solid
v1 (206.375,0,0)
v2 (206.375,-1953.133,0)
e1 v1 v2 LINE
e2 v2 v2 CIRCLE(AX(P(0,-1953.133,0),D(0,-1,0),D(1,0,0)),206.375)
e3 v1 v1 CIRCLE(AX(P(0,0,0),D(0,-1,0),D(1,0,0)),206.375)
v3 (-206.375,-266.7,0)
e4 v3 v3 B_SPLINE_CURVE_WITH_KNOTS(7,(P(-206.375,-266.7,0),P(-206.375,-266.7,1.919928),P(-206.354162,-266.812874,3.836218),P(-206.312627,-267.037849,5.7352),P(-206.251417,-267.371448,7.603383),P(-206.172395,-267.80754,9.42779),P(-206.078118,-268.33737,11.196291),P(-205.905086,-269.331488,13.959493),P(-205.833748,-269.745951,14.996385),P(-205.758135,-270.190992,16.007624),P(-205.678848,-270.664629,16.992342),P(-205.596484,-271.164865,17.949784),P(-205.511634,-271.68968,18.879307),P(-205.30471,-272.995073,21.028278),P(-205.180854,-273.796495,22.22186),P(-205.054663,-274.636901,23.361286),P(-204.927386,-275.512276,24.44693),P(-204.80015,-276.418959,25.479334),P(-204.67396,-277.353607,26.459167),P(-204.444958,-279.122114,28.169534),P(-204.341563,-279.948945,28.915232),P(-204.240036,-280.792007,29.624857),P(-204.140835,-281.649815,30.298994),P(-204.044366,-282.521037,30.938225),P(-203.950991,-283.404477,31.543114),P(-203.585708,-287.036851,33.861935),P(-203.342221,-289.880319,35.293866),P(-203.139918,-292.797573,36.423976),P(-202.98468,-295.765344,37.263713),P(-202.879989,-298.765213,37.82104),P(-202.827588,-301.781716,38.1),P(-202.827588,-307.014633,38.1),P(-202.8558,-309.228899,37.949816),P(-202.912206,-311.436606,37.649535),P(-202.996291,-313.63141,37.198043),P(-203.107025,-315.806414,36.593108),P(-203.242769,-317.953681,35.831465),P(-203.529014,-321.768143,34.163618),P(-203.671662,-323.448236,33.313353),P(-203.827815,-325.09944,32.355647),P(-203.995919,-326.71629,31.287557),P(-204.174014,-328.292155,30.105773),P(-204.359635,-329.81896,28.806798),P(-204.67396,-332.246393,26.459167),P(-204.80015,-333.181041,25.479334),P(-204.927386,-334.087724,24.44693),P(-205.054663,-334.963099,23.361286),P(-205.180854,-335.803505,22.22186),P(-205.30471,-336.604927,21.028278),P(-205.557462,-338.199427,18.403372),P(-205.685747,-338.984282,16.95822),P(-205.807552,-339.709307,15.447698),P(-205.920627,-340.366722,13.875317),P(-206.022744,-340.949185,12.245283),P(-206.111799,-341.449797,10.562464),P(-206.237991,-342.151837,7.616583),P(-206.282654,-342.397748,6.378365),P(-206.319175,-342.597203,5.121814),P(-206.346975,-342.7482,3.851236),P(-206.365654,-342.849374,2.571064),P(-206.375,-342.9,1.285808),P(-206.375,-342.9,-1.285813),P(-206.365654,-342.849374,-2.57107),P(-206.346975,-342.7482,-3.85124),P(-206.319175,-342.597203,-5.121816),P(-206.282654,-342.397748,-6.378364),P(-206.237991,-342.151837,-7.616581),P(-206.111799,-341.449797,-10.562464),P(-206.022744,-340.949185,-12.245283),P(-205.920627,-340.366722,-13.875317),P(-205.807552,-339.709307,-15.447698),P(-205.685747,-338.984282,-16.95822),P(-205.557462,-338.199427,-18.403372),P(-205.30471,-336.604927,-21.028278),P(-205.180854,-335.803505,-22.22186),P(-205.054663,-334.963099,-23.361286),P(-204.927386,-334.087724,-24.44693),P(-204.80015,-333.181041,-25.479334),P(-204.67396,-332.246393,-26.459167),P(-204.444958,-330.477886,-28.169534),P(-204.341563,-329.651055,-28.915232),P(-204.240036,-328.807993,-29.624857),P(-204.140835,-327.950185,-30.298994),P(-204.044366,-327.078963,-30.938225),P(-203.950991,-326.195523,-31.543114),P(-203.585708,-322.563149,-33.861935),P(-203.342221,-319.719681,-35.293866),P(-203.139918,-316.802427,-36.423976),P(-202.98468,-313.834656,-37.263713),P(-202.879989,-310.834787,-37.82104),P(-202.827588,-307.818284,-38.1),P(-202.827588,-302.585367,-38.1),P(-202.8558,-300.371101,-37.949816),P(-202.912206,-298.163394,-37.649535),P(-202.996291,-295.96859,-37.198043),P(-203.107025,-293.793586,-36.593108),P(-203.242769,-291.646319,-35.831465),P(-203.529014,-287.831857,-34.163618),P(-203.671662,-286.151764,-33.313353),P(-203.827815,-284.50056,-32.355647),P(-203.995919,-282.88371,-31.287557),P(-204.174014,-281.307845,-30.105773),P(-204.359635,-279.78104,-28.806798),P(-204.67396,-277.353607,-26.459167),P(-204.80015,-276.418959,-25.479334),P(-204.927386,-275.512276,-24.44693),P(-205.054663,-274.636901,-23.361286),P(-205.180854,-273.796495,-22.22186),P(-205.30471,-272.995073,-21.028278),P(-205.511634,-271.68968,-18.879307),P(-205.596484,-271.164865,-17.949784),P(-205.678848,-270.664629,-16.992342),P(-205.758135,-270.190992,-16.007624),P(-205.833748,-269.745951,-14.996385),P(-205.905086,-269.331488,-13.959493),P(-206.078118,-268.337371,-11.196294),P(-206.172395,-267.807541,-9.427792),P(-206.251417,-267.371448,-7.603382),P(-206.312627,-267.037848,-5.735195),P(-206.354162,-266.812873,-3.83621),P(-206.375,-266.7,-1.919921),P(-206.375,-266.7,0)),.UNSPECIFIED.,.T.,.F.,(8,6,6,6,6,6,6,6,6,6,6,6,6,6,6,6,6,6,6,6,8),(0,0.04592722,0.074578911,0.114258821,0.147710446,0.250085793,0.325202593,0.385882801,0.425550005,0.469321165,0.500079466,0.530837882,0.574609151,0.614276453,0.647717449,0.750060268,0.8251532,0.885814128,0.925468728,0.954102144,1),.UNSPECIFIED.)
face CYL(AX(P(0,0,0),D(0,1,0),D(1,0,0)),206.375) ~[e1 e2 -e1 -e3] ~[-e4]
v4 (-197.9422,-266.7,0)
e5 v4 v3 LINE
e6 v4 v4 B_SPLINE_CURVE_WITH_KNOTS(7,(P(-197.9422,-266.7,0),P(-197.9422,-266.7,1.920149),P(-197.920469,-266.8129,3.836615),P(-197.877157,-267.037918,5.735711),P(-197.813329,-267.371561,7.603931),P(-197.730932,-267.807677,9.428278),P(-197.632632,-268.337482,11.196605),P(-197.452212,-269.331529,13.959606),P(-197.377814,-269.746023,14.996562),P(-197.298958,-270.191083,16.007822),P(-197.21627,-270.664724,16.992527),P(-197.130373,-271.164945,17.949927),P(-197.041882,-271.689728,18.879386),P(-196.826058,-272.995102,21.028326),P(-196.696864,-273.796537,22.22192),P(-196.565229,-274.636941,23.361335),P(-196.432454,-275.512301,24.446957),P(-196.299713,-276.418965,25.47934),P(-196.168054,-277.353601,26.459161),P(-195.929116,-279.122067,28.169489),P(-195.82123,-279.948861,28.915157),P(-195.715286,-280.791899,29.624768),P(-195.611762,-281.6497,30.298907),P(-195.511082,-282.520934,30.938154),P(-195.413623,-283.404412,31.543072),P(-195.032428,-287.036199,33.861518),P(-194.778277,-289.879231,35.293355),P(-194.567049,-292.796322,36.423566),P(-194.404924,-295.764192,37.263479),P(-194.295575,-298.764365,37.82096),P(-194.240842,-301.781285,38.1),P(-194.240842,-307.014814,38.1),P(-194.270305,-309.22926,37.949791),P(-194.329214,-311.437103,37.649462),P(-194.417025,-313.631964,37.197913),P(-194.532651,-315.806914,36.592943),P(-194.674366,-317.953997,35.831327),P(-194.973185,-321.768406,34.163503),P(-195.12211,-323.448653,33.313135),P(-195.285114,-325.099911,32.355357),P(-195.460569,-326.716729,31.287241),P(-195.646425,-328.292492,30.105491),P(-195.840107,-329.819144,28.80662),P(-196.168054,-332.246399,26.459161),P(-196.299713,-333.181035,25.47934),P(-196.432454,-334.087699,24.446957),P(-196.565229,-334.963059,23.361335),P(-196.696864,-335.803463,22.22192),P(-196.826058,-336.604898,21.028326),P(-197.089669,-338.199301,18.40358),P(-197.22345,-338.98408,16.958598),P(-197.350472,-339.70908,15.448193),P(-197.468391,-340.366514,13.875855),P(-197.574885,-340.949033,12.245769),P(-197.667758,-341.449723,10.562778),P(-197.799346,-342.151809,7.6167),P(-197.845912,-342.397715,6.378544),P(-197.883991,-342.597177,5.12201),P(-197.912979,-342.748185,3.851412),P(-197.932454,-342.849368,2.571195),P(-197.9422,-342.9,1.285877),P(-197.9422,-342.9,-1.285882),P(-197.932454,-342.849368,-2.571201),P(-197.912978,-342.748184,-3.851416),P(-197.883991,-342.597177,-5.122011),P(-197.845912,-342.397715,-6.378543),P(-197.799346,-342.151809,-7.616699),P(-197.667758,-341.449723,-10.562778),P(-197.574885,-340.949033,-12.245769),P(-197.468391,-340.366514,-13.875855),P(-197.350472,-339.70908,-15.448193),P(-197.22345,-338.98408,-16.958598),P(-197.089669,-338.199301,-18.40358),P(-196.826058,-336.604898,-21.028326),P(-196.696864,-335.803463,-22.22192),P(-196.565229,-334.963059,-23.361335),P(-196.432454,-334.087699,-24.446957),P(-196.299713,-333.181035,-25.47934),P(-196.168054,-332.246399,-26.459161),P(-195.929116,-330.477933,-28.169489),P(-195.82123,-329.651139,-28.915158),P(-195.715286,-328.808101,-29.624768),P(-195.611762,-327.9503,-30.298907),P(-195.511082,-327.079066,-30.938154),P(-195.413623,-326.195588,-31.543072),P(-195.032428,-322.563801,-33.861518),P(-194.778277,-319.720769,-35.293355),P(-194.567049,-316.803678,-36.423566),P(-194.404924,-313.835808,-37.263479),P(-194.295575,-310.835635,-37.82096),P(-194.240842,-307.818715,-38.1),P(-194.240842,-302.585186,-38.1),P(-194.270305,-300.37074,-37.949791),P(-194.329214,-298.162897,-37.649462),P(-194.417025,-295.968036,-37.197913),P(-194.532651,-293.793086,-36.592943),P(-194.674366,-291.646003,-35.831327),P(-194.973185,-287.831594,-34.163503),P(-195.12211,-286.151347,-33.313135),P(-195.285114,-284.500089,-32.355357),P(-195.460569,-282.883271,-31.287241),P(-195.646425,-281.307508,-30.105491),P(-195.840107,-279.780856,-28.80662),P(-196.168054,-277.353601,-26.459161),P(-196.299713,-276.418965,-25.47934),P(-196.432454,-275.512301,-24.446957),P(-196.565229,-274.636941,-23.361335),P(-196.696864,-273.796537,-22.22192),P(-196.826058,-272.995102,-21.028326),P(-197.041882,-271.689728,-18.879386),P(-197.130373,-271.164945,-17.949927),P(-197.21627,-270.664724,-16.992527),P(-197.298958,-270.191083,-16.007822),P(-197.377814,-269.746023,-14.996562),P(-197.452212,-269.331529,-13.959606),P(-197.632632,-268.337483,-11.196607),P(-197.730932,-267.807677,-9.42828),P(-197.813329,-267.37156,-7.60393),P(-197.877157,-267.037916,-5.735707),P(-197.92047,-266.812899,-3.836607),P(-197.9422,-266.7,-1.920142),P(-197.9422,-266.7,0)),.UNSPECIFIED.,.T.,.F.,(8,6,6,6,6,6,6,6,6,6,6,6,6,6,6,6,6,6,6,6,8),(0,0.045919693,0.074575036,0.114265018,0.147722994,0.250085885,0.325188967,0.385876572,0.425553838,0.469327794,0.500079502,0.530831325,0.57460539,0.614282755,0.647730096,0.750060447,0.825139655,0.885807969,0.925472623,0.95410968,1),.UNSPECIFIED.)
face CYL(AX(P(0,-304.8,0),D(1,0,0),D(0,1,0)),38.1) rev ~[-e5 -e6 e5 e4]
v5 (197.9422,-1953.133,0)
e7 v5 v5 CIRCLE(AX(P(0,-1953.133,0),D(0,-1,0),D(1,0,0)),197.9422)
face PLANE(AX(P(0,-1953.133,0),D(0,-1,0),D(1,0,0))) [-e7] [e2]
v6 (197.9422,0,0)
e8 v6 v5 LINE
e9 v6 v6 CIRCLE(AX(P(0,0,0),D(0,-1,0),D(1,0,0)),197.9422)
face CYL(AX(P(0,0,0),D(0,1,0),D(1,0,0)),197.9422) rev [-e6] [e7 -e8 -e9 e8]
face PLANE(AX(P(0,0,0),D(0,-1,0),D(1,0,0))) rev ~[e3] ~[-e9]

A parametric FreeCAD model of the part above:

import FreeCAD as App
import Part
import Sketcher

V = App.Vector
Q = App.Units.Quantity

doc = App.newDocument("Part")
params = doc.addObject("Spreadsheet::Sheet", "Params")
for row, (alias, value) in enumerate([
    ("sketch1_diameter", "16.25 in"),
    ("sketch1_diameter2", "15.586 in"),
    ("pad1_length", "76.895 in"),
    ("sketch2_diameter", "3 in"),
], start=1):
    params.set(f"A{row}", alias)
    params.set(f"B{row}", "=" + value)
    params.setAlias(f"B{row}", alias)

body = doc.addObject("PartDesign::Body", "Body")

sketch1 = doc.addObject("Sketcher::SketchObject", "Sketch")
body.addObject(sketch1)
sketch1.AttachmentSupport = (doc.XZ_Plane, [""])
sketch1.MapMode = "FlatFace"
sketch1.addGeometry(Part.Circle(V(0, 0, 0), V(0, 0, 1), 206), False)
sketch1.addGeometry(Part.Circle(V(0, 0, 0), V(0, 0, 1), 198), False)
sketch1.addConstraint(Sketcher.Constraint("Coincident", 0, 3, -1, 1))
sketch1.addConstraint(Sketcher.Constraint("Coincident", 1, 3, -1, 1))
sketch1.addConstraint(Sketcher.Constraint("Diameter", 0, Q("16.25 in")))
sketch1.addConstraint(Sketcher.Constraint("Diameter", 1, Q("15.586 in")))
sketch1.setExpression("Constraints[2]", "Params.sketch1_diameter")
sketch1.setExpression("Constraints[3]", "Params.sketch1_diameter2")
pad1 = doc.addObject("PartDesign::Pad", "Pad")
body.addObject(pad1)
pad1.Profile = sketch1
pad1.setExpression("Length", "Params.pad1_length")

sketch2 = doc.addObject("Sketcher::SketchObject", "Sketch001")
body.addObject(sketch2)
sketch2.AttachmentSupport = (doc.YZ_Plane, [""])
sketch2.MapMode = "FlatFace"
sketch2.addGeometry(Part.Circle(V(-305, 0, 0), V(0, 0, 1), 38), False)
sketch2.addConstraint(Sketcher.Constraint("PointOnObject", 0, 3, -1))
sketch2.addConstraint(Sketcher.Constraint("Diameter", 0, Q("3 in")))
sketch2.addConstraint(Sketcher.Constraint("DistanceX", 0, 3, -1, 1, Q("12 in")))
sketch2.setExpression("Constraints[1]", "Params.sketch2_diameter")
pocket1 = doc.addObject("PartDesign::Pocket", "Pocket")
body.addObject(pocket1)
pocket1.Profile = sketch2
pocket1.Type = "ThroughAll"

doc.recompute()
